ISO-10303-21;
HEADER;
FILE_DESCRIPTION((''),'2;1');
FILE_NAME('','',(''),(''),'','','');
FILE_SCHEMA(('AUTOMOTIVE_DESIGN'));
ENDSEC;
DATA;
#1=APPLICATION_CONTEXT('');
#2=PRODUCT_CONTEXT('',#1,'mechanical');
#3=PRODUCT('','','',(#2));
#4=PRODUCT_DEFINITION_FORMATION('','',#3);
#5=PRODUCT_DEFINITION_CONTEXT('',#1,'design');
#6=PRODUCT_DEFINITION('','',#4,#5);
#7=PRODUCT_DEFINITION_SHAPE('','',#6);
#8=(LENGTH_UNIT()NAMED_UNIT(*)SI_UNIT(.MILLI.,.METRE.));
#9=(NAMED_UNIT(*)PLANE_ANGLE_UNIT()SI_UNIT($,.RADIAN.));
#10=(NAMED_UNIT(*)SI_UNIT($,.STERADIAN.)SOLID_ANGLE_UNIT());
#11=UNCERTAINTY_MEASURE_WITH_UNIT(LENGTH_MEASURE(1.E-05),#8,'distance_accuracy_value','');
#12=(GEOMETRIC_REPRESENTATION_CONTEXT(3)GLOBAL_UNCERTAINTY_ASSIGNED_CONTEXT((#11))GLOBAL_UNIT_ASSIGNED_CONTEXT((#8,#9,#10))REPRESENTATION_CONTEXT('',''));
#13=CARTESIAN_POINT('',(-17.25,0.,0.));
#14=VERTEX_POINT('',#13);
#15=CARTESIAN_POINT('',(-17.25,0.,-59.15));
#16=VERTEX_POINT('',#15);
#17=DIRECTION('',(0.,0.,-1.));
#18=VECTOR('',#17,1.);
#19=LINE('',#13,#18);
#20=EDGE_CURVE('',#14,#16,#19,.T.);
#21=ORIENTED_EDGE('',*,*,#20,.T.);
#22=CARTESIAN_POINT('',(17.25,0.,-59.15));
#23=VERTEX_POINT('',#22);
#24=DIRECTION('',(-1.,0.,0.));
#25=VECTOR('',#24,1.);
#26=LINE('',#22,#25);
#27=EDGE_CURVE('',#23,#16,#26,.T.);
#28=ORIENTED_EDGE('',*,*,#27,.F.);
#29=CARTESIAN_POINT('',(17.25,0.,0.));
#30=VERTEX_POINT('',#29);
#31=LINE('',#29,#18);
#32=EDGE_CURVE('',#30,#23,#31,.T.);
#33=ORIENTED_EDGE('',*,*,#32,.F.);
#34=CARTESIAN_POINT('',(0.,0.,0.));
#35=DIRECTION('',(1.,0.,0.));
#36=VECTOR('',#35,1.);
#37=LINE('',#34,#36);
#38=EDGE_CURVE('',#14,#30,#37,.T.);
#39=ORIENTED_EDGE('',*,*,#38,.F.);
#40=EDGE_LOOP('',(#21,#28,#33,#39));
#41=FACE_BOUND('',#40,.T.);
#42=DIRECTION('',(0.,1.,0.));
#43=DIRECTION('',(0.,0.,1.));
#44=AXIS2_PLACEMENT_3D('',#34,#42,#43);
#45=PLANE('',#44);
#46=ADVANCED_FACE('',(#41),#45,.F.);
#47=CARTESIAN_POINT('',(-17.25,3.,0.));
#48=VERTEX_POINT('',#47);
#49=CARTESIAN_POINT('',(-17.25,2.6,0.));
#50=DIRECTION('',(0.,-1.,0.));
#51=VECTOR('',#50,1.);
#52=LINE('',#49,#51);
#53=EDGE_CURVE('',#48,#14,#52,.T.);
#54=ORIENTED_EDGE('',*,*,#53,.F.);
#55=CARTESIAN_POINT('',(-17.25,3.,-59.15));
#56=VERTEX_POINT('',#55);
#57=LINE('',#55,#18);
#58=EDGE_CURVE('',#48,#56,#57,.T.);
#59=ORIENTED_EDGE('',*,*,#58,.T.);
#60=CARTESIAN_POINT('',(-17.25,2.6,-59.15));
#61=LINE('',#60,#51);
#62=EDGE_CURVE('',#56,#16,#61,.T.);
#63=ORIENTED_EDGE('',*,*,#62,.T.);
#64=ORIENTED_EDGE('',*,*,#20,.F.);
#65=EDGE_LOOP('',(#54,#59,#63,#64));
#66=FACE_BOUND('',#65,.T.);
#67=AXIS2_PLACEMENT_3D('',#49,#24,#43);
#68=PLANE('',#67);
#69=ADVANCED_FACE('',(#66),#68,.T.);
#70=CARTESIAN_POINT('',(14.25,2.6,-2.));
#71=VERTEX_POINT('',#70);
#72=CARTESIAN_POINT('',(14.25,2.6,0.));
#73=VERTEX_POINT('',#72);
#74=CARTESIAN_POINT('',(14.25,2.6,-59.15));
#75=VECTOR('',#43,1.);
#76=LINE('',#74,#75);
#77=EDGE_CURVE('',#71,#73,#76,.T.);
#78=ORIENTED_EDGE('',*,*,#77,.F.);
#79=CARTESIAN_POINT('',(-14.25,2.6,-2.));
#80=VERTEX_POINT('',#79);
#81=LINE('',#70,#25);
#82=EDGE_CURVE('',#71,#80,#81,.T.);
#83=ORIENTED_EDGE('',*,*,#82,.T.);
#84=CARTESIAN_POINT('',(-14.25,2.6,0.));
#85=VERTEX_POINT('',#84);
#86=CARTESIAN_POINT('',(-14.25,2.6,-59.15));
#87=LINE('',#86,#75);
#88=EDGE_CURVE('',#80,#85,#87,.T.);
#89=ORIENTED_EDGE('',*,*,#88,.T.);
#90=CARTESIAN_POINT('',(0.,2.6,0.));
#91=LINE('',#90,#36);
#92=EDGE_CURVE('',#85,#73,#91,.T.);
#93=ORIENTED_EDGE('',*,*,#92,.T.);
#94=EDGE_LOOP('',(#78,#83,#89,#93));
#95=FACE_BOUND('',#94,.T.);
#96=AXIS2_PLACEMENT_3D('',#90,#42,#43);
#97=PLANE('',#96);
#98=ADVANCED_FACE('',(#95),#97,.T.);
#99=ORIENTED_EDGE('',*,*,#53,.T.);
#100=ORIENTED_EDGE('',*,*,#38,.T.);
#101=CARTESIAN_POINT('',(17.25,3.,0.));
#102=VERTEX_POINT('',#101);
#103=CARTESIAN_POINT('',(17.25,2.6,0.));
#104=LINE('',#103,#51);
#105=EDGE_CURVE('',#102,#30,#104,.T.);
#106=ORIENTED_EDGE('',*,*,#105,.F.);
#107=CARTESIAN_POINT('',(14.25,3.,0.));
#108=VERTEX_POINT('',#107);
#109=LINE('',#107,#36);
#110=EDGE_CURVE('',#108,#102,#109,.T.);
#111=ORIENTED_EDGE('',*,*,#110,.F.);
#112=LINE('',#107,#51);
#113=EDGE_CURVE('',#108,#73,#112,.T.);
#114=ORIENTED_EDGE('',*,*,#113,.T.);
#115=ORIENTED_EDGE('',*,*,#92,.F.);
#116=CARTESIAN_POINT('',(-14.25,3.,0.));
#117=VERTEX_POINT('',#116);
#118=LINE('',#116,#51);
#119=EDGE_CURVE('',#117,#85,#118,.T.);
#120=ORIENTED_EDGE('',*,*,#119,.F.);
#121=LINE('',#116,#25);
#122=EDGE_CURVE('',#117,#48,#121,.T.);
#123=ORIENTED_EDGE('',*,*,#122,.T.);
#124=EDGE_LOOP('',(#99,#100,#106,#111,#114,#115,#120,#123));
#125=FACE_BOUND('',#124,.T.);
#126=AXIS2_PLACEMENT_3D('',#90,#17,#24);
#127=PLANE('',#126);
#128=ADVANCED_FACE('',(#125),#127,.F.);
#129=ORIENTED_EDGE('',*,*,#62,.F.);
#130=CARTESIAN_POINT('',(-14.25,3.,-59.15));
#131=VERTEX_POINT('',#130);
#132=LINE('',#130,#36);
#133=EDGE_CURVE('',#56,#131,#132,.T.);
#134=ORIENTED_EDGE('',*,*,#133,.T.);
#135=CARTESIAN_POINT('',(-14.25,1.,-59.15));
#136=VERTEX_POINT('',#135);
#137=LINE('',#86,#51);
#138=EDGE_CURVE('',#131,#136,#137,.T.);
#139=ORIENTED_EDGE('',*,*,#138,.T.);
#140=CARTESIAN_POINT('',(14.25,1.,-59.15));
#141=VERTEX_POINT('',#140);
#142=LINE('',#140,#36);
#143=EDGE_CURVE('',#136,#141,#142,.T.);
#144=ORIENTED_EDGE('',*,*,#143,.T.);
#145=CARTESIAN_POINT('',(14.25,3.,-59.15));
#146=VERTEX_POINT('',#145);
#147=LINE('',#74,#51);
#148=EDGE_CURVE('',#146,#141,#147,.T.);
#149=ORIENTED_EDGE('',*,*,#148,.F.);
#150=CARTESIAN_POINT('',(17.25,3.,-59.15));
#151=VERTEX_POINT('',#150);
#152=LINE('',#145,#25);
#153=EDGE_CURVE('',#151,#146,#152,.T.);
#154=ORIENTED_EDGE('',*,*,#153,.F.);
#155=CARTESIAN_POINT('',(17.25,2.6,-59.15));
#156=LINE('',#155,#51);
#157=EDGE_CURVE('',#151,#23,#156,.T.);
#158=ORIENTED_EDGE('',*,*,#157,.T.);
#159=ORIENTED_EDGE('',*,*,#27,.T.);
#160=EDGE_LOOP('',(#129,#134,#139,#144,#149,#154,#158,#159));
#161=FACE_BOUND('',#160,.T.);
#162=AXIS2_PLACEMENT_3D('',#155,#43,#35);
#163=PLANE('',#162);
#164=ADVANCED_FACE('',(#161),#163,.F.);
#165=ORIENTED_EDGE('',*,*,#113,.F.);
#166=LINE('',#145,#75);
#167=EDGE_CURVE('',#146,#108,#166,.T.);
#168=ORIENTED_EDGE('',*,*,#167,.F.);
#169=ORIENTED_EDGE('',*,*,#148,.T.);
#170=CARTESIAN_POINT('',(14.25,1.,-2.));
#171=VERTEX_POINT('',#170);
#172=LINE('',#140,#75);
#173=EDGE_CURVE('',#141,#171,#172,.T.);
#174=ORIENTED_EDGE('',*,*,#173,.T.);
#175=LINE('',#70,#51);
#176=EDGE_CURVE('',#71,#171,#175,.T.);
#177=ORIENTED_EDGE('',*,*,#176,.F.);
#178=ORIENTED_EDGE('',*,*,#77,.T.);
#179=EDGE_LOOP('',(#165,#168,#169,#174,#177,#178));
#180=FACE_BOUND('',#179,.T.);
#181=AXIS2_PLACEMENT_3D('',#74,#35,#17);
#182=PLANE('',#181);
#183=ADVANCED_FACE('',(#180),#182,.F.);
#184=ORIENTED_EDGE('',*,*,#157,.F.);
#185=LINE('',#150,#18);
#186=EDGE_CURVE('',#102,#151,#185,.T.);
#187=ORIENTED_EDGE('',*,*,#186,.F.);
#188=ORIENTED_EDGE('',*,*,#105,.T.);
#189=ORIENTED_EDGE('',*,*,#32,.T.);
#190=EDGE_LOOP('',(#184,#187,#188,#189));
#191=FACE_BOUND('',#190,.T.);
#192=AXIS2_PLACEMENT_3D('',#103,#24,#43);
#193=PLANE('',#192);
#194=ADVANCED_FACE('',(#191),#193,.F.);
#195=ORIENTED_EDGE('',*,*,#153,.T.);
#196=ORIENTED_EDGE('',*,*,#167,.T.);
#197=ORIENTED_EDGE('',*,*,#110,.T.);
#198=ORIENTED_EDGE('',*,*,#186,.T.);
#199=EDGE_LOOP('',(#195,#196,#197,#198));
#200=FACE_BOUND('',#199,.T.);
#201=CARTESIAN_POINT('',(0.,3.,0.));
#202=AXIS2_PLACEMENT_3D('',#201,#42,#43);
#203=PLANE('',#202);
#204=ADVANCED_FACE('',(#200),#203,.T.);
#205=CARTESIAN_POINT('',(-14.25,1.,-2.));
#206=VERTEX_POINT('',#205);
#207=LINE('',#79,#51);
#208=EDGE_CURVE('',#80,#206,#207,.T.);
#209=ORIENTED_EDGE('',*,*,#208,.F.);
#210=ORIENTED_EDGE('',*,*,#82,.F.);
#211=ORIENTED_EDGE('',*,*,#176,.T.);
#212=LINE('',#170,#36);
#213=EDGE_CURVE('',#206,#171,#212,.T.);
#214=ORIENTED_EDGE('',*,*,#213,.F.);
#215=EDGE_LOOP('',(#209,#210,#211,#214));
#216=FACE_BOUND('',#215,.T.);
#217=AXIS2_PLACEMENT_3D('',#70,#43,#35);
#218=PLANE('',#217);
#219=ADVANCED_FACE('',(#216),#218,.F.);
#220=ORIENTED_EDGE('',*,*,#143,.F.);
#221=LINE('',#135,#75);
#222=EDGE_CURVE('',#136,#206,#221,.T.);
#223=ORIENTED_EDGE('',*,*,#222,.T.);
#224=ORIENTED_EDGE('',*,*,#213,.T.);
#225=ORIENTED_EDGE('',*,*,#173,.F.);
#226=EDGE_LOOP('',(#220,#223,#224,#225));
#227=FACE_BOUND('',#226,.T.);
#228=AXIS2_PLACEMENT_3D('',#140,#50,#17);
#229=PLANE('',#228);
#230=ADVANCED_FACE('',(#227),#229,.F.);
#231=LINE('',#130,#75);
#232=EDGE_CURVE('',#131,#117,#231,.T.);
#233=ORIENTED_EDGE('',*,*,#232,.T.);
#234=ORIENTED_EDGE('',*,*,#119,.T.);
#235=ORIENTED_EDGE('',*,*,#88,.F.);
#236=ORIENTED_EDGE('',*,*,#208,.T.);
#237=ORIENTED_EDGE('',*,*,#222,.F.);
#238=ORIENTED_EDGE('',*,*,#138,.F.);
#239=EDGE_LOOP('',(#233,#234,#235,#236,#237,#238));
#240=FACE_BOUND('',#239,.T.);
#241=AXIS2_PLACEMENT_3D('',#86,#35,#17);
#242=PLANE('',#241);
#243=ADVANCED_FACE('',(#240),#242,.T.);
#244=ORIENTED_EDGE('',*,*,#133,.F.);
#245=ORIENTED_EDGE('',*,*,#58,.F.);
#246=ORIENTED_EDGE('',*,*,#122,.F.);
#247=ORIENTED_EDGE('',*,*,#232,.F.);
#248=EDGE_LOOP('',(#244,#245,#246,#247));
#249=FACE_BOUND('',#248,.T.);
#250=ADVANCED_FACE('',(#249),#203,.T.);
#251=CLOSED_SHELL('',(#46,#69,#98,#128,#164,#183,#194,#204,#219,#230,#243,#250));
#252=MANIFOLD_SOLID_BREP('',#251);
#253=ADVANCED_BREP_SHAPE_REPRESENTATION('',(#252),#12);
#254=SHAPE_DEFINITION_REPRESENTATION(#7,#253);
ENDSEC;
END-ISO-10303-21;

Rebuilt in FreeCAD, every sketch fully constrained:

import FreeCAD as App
import Part
import Sketcher

doc = App.newDocument("Part")
body = doc.addObject("PartDesign::Body", "Body")

# Sketch on XZ plane
sketch1 = doc.addObject("Sketcher::SketchObject", "Sketch")
body.addObject(sketch1)
sketch1.AttachmentSupport = (doc.XZ_Plane, [""])
sketch1.MapMode = "FlatFace"
sketch1.addGeometry([
    Part.LineSegment(App.Vector(0, 0, 0), App.Vector(17.2, 0, 0)),  # 0
    Part.LineSegment(App.Vector(17.2, 0, 0), App.Vector(17.2, -59.1, 0)),  # 1
    Part.LineSegment(App.Vector(17.2, -59.1, 0), App.Vector(14.2, -59.1, 0)),  # 2
    Part.LineSegment(App.Vector(14.2, -59.1, 0), App.Vector(14.2, -2, 0)),  # 3
    Part.LineSegment(App.Vector(14.2, -2, 0), App.Vector(0, -2, 0)),  # 4
    Part.LineSegment(App.Vector(0, -2, 0), App.Vector(0, 0, 0)),  # 5
], False)
sketch1.addConstraint([
    Sketcher.Constraint("Coincident", 0, 2, 1, 1),
    Sketcher.Constraint("Coincident", 1, 2, 2, 1),
    Sketcher.Constraint("Coincident", 2, 2, 3, 1),
    Sketcher.Constraint("Coincident", 3, 2, 4, 1),
    Sketcher.Constraint("Coincident", 4, 2, 5, 1),
    Sketcher.Constraint("Coincident", 5, 2, 0, 1),
    Sketcher.Constraint("Horizontal", 0),
    Sketcher.Constraint("Vertical", 1),
    Sketcher.Constraint("Horizontal", 2),
    Sketcher.Constraint("Vertical", 3),
    Sketcher.Constraint("Horizontal", 4),
    Sketcher.Constraint("Vertical", 5),
    Sketcher.Constraint("Coincident", 5, 2, -1, 1),
    Sketcher.Constraint("DistanceX", 2, 2, 2, 1, 3.0),
    Sketcher.Constraint("DistanceY", 5, 1, 5, 2, 2.0),
    Sketcher.Constraint("DistanceX", 0, 1, 0, 2, 17.25),
    Sketcher.Constraint("DistanceY", 1, 2, 1, 1, 59.15),
])
pad1 = doc.addObject("PartDesign::Pad", "Pad")
body.addObject(pad1)
pad1.Profile = sketch1
pad1.Length = 2.6
pad1.Reversed = True

# Sketch on XZ plane
sketch2 = doc.addObject("Sketcher::SketchObject", "Sketch001")
body.addObject(sketch2)
sketch2.AttachmentSupport = (doc.XZ_Plane, [""])
sketch2.MapMode = "FlatFace"
sketch2.AttachmentOffset = App.Placement(App.Vector(0, 0, -2.6), App.Rotation())
sketch2.addGeometry([
    Part.LineSegment(App.Vector(14.2, -59.1, 0), App.Vector(14.2, 0, 0)),
    Part.LineSegment(App.Vector(14.2, 0, 0), App.Vector(17.2, 0, 0)),
    Part.LineSegment(App.Vector(17.2, 0, 0), App.Vector(17.2, -59.1, 0)),
    Part.LineSegment(App.Vector(17.2, -59.1, 0), App.Vector(14.2, -59.1, 0)),
], False)
sketch2.addConstraint([
    Sketcher.Constraint("Coincident", 0, 2, 1, 1),
    Sketcher.Constraint("Coincident", 1, 2, 2, 1),
    Sketcher.Constraint("Coincident", 2, 2, 3, 1),
    Sketcher.Constraint("Coincident", 3, 2, 0, 1),
    Sketcher.Constraint("Vertical", 0),
    Sketcher.Constraint("Horizontal", 1),
    Sketcher.Constraint("Vertical", 2),
    Sketcher.Constraint("Horizontal", 3),
    Sketcher.Constraint("PointOnObject", 0, 2, -1),
    Sketcher.Constraint("DistanceX", 1, 1, 1, 2, 3.0),
    Sketcher.Constraint("DistanceY", 0, 1, 0, 2, 59.15),
    Sketcher.Constraint("DistanceX", -1, 1, 0, 2, 14.25),
])
pad2 = doc.addObject("PartDesign::Pad", "Pad001")
body.addObject(pad2)
pad2.Profile = sketch2
pad2.Length = 0.4
pad2.Reversed = True
doc.recompute()

mirrored = doc.addObject("PartDesign::Mirrored", "Mirrored")
body.addObject(mirrored)
mirrored.Originals = [pad1, pad2]
mirrored.MirrorPlane = (doc.YZ_Plane, [""])
body.Tip = mirrored

# Sketch on XY plane
sketch3 = doc.addObject("Sketcher::SketchObject", "Sketch002")
body.addObject(sketch3)
sketch3.AttachmentSupport = (doc.XY_Plane, [""])
sketch3.MapMode = "FlatFace"
sketch3.AttachmentOffset = App.Placement(App.Vector(0, 0, -2), App.Rotation())
sketch3.addGeometry([
    Part.LineSegment(App.Vector(14.2, 1, 0), App.Vector(14.2, 0, 0)),
    Part.LineSegment(App.Vector(14.2, 0, 0), App.Vector(-14.2, 0, 0)),
    Part.LineSegment(App.Vector(-14.2, 0, 0), App.Vector(-14.2, 1, 0)),
    Part.LineSegment(App.Vector(-14.2, 1, 0), App.Vector(14.2, 1, 0)),
], False)
sketch3.addConstraint([
    Sketcher.Constraint("Coincident", 0, 2, 1, 1),
    Sketcher.Constraint("Coincident", 1, 2, 2, 1),
    Sketcher.Constraint("Coincident", 2, 2, 3, 1),
    Sketcher.Constraint("Coincident", 3, 2, 0, 1),
    Sketcher.Constraint("Vertical", 0),
    Sketcher.Constraint("Horizontal", 1),
    Sketcher.Constraint("Vertical", 2),
    Sketcher.Constraint("Horizontal", 3),
    Sketcher.Constraint("Symmetric", 0, 2, 1, 2, -1, 1),
    Sketcher.Constraint("DistanceY", 0, 2, 0, 1, 1.0),
    Sketcher.Constraint("DistanceX", 1, 2, 1, 1, 28.5),
])
pad3 = doc.addObject("PartDesign::Pad", "Pad002")
body.addObject(pad3)
pad3.Profile = sketch3
pad3.Length = 57.15
pad3.Reversed = True

doc.recompute()
